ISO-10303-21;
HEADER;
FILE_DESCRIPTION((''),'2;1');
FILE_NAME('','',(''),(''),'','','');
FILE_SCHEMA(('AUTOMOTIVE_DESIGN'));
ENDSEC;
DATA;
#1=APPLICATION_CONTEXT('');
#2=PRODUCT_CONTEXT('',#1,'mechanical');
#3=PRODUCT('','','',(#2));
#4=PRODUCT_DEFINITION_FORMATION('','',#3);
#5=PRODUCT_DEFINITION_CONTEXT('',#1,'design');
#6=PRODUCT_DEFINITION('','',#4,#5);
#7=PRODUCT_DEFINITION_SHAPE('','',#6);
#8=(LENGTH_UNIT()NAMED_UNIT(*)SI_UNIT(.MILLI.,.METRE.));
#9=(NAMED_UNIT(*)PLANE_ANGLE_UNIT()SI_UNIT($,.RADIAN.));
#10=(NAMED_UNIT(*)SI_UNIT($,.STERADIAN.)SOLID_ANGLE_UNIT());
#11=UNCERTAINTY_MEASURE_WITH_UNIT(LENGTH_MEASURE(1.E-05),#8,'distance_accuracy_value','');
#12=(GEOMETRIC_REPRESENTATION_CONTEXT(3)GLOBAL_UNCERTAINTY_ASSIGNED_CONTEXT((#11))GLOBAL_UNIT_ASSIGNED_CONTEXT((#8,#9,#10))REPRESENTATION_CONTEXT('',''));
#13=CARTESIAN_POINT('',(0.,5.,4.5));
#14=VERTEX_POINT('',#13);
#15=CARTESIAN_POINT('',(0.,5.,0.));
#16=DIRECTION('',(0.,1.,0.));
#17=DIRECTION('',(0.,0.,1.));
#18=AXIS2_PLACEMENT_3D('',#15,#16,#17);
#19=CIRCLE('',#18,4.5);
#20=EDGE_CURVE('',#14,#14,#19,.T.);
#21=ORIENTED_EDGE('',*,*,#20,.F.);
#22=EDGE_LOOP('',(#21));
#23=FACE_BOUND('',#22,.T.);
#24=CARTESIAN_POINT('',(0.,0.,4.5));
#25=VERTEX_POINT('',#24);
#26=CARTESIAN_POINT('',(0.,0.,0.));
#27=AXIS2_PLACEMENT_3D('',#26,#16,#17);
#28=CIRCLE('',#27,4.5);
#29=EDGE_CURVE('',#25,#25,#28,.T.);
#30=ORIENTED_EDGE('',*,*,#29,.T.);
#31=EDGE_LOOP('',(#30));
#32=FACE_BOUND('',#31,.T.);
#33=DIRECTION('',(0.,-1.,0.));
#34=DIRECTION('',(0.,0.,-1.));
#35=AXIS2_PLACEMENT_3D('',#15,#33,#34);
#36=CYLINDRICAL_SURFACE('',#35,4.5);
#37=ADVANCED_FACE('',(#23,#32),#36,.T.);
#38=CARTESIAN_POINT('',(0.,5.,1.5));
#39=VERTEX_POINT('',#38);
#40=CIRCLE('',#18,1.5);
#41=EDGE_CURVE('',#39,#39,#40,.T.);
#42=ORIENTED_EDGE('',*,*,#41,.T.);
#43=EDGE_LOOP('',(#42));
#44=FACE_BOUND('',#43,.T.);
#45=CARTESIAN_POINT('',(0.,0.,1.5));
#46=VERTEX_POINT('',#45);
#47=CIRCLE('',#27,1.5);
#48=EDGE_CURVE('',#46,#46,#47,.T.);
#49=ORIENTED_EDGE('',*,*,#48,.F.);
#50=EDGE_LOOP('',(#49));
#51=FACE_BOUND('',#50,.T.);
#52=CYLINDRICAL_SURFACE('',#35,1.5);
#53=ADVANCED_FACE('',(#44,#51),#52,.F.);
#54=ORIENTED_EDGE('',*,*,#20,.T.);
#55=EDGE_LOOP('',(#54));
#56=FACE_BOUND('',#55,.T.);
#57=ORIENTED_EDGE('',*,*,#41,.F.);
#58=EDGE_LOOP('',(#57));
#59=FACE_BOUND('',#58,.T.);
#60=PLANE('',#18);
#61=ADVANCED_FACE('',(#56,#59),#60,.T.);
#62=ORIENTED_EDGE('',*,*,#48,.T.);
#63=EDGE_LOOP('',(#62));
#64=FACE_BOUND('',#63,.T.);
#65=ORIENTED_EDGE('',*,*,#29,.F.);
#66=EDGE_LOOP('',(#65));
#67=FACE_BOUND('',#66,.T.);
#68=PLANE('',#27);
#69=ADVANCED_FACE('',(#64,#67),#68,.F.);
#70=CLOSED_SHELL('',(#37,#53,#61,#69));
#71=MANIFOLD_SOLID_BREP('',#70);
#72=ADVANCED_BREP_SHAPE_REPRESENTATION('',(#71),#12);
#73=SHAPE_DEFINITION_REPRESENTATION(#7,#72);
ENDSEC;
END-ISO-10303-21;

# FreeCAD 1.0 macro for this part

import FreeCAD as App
import Part
import Sketcher
from FreeCAD import Vector
Q = App.Units.Quantity

doc = App.newDocument("Part")
body = doc.addObject("PartDesign::Body", "Body")

# Sketch on XZ plane
sketch1 = doc.addObject("Sketcher::SketchObject", "Sketch")
body.addObject(sketch1)
sketch1.AttachmentSupport = (doc.XZ_Plane, [""])
sketch1.MapMode = "FlatFace"
sketch1.addGeometry(Part.Circle(Vector(0, 0, 0), Vector(0, 0, 1), 4.5), False)
sketch1.addGeometry(Part.Circle(Vector(0, 0, 0), Vector(0, 0, 1), 1.5), False)
sketch1.addConstraint(Sketcher.Constraint("Coincident", 0, 3, -1, 1))
sketch1.addConstraint(Sketcher.Constraint("Coincident", 1, 3, -1, 1))
sketch1.addConstraint(Sketcher.Constraint("Diameter", 0, Q("9 mm")))
sketch1.addConstraint(Sketcher.Constraint("Diameter", 1, Q("3 mm")))
pad1 = doc.addObject("PartDesign::Pad", "Pad")
body.addObject(pad1)
pad1.Profile = sketch1
pad1.Length = 5
pad1.Reversed = True

doc.recompute()
